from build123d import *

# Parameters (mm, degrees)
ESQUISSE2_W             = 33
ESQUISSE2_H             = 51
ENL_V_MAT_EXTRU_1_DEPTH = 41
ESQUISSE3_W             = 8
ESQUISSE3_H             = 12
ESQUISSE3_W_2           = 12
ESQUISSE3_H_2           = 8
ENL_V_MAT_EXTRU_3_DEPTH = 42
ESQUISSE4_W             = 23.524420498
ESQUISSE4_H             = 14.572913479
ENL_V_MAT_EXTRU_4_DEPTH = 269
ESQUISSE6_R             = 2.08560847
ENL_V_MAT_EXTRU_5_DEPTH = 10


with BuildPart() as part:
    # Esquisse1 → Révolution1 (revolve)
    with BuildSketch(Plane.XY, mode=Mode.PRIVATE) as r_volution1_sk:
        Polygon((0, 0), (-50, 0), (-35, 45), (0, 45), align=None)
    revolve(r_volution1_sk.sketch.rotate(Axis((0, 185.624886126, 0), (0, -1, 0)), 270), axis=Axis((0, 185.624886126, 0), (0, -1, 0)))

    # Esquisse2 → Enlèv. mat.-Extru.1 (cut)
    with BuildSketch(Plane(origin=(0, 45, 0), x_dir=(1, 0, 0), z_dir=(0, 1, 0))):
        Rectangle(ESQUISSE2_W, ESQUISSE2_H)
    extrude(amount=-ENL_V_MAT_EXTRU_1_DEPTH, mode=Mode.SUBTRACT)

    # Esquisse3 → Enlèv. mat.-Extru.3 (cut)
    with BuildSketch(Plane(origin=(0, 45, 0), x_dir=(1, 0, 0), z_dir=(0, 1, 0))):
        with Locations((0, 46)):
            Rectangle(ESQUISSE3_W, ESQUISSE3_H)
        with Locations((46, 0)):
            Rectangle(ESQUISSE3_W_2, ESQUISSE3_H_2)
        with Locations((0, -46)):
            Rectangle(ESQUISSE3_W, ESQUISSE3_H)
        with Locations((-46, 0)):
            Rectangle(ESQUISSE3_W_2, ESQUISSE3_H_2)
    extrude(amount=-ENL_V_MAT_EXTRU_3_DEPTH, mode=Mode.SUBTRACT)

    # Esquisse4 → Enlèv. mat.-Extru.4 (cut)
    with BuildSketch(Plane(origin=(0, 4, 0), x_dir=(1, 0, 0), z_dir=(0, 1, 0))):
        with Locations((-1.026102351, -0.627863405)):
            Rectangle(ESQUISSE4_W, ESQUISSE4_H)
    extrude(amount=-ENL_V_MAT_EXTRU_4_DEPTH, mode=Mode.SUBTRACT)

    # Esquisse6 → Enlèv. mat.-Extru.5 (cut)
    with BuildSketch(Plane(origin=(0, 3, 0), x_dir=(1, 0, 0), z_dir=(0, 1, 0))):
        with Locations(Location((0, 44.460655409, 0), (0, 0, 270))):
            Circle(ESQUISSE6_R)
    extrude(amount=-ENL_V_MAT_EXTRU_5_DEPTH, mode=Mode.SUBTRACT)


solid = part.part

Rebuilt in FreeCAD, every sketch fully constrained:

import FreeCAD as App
import Part
import Sketcher

V = App.Vector

doc = App.newDocument("Part")
params = doc.addObject("Spreadsheet::Sheet", "Params")
for row, (alias, value) in enumerate([
    ("sketch1_width", "50 mm"),
    ("sketch1_width2", "35 mm"),
    ("sketch1_height", "45 mm"),
    ("revolution_angle", "360 deg"),
    ("sketch2_width", "33 mm"),
    ("sketch2_height", "51 mm"),
    ("pocket1_length", "41 mm"),
    ("sketch3_width", "8 mm"),
    ("sketch3_width2", "12 mm"),
    ("pocket2_length", "42 mm"),
    ("pocket3_length", "269 mm"),
    ("pocket4_length", "10 mm"),
], start=1):
    params.set(f"A{row}", alias)
    params.set(f"B{row}", "=" + value)
    params.setAlias(f"B{row}", alias)

body = doc.addObject("PartDesign::Body", "Body")

sketch1 = doc.addObject("Sketcher::SketchObject", "Sketch")
body.addObject(sketch1)
sketch1.AttachmentSupport = (doc.XY_Plane, [""])
sketch1.MapMode = "FlatFace"
sketch1.addGeometry(Part.LineSegment(V(-50, 0, 0), V(0, 0, 0)), False)
sketch1.addGeometry(Part.LineSegment(V(0, 0, 0), V(0, 45, 0)), False)
sketch1.addGeometry(Part.LineSegment(V(0, 45, 0), V(-35, 45, 0)), False)
sketch1.addGeometry(Part.LineSegment(V(-35, 45, 0), V(-50, 0, 0)), False)
sketch1.addConstraint(Sketcher.Constraint("Coincident", 0, 2, 1, 1))
sketch1.addConstraint(Sketcher.Constraint("Coincident", 1, 2, 2, 1))
sketch1.addConstraint(Sketcher.Constraint("Coincident", 2, 2, 3, 1))
sketch1.addConstraint(Sketcher.Constraint("Coincident", 3, 2, 0, 1))
sketch1.addConstraint(Sketcher.Constraint("Horizontal", 0))
sketch1.addConstraint(Sketcher.Constraint("Vertical", 1))
sketch1.addConstraint(Sketcher.Constraint("Horizontal", 2))
sketch1.addConstraint(Sketcher.Constraint("Coincident", 0, 2, -1, 1))
sketch1.addConstraint(Sketcher.Constraint("DistanceX", 0, 1, 0, 2, 50.0))
sketch1.addConstraint(Sketcher.Constraint("DistanceX", 2, 2, 2, 1, 35.0))
sketch1.addConstraint(Sketcher.Constraint("DistanceY", 1, 1, 1, 2, 45.0))
sketch1.setExpression("Constraints[8]", "Params.sketch1_width")
sketch1.setExpression("Constraints[9]", "Params.sketch1_width2")
sketch1.setExpression("Constraints[10]", "Params.sketch1_height")
revolution = doc.addObject("PartDesign::Revolution", "Revolution")
body.addObject(revolution)
revolution.Profile = sketch1
revolution.ReferenceAxis = (sketch1, ["V_Axis"])
revolution.setExpression("Angle", "Params.revolution_angle")

sketch2 = doc.addObject("Sketcher::SketchObject", "Sketch001")
body.addObject(sketch2)
sketch2.AttachmentSupport = (doc.XZ_Plane, [""])
sketch2.MapMode = "FlatFace"
sketch2.AttachmentOffset = App.Placement(V(0, 0, -45), App.Rotation())
sketch2.addGeometry(Part.LineSegment(V(-16, -26, 0), V(-16, 26, 0)), False)
sketch2.addGeometry(Part.LineSegment(V(-16, 26, 0), V(16, 26, 0)), False)
sketch2.addGeometry(Part.LineSegment(V(16, 26, 0), V(16, -26, 0)), False)
sketch2.addGeometry(Part.LineSegment(V(16, -26, 0), V(-16, -26, 0)), False)
sketch2.addConstraint(Sketcher.Constraint("Coincident", 0, 2, 1, 1))
sketch2.addConstraint(Sketcher.Constraint("Coincident", 1, 2, 2, 1))
sketch2.addConstraint(Sketcher.Constraint("Coincident", 2, 2, 3, 1))
sketch2.addConstraint(Sketcher.Constraint("Coincident", 3, 2, 0, 1))
sketch2.addConstraint(Sketcher.Constraint("Vertical", 0))
sketch2.addConstraint(Sketcher.Constraint("Horizontal", 1))
sketch2.addConstraint(Sketcher.Constraint("Vertical", 2))
sketch2.addConstraint(Sketcher.Constraint("Horizontal", 3))
sketch2.addConstraint(Sketcher.Constraint("Symmetric", 0, 2, 2, 2, -1, 1))
sketch2.addConstraint(Sketcher.Constraint("DistanceX", 1, 1, 1, 2, 33.0))
sketch2.addConstraint(Sketcher.Constraint("DistanceY", 0, 1, 0, 2, 51.0))
sketch2.setExpression("Constraints[9]", "Params.sketch2_width")
sketch2.setExpression("Constraints[10]", "Params.sketch2_height")
pocket1 = doc.addObject("PartDesign::Pocket", "Pocket")
body.addObject(pocket1)
pocket1.Profile = sketch2
pocket1.setExpression("Length", "Params.pocket1_length")
pocket1.Reversed = True

sketch3 = doc.addObject("Sketcher::SketchObject", "Sketch002")
body.addObject(sketch3)
sketch3.AttachmentSupport = (doc.XZ_Plane, [""])
sketch3.MapMode = "FlatFace"
sketch3.AttachmentOffset = App.Placement(V(0, 0, -45), App.Rotation())
sketch3.addGeometry(Part.LineSegment(V(-4, -52, 0), V(-4, -40, 0)), False)
sketch3.addGeometry(Part.LineSegment(V(-4, -40, 0), V(4, -40, 0)), False)
sketch3.addGeometry(Part.LineSegment(V(4, -40, 0), V(4, -52, 0)), False)
sketch3.addGeometry(Part.LineSegment(V(4, -52, 0), V(-4, -52, 0)), False)
sketch3.addGeometry(Part.LineSegment(V(40, -4, 0), V(40, 4, 0)), False)
sketch3.addGeometry(Part.LineSegment(V(40, 4, 0), V(52, 4, 0)), False)
sketch3.addGeometry(Part.LineSegment(V(52, 4, 0), V(52, -4, 0)), False)
sketch3.addGeometry(Part.LineSegment(V(52, -4, 0), V(40, -4, 0)), False)
sketch3.addGeometry(Part.LineSegment(V(-4, 40, 0), V(-4, 52, 0)), False)
sketch3.addGeometry(Part.LineSegment(V(-4, 52, 0), V(4, 52, 0)), False)
sketch3.addGeometry(Part.LineSegment(V(4, 52, 0), V(4, 40, 0)), False)
sketch3.addGeometry(Part.LineSegment(V(4, 40, 0), V(-4, 40, 0)), False)
sketch3.addGeometry(Part.LineSegment(V(-52, -4, 0), V(-52, 4, 0)), False)
sketch3.addGeometry(Part.LineSegment(V(-52, 4, 0), V(-40, 4, 0)), False)
sketch3.addGeometry(Part.LineSegment(V(-40, 4, 0), V(-40, -4, 0)), False)
sketch3.addGeometry(Part.LineSegment(V(-40, -4, 0), V(-52, -4, 0)), False)
sketch3.addConstraint(Sketcher.Constraint("Coincident", 0, 2, 1, 1))
sketch3.addConstraint(Sketcher.Constraint("Coincident", 1, 2, 2, 1))
sketch3.addConstraint(Sketcher.Constraint("Coincident", 2, 2, 3, 1))
sketch3.addConstraint(Sketcher.Constraint("Coincident", 3, 2, 0, 1))
sketch3.addConstraint(Sketcher.Constraint("Coincident", 4, 2, 5, 1))
sketch3.addConstraint(Sketcher.Constraint("Coincident", 5, 2, 6, 1))
sketch3.addConstraint(Sketcher.Constraint("Coincident", 6, 2, 7, 1))
sketch3.addConstraint(Sketcher.Constraint("Coincident", 7, 2, 4, 1))
sketch3.addConstraint(Sketcher.Constraint("Coincident", 8, 2, 9, 1))
sketch3.addConstraint(Sketcher.Constraint("Coincident", 9, 2, 10, 1))
sketch3.addConstraint(Sketcher.Constraint("Coincident", 10, 2, 11, 1))
sketch3.addConstraint(Sketcher.Constraint("Coincident", 11, 2, 8, 1))
sketch3.addConstraint(Sketcher.Constraint("Coincident", 12, 2, 13, 1))
sketch3.addConstraint(Sketcher.Constraint("Coincident", 13, 2, 14, 1))
sketch3.addConstraint(Sketcher.Constraint("Coincident", 14, 2, 15, 1))
sketch3.addConstraint(Sketcher.Constraint("Coincident", 15, 2, 12, 1))
sketch3.addConstraint(Sketcher.Constraint("Vertical", 0))
sketch3.addConstraint(Sketcher.Constraint("Horizontal", 1))
sketch3.addConstraint(Sketcher.Constraint("Vertical", 2))
sketch3.addConstraint(Sketcher.Constraint("Horizontal", 3))
sketch3.addConstraint(Sketcher.Constraint("Vertical", 4))
sketch3.addConstraint(Sketcher.Constraint("Horizontal", 5))
sketch3.addConstraint(Sketcher.Constraint("Vertical", 6))
sketch3.addConstraint(Sketcher.Constraint("Horizontal", 7))
sketch3.addConstraint(Sketcher.Constraint("Vertical", 8))
sketch3.addConstraint(Sketcher.Constraint("Horizontal", 9))
sketch3.addConstraint(Sketcher.Constraint("Vertical", 10))
sketch3.addConstraint(Sketcher.Constraint("Horizontal", 11))
sketch3.addConstraint(Sketcher.Constraint("Vertical", 12))
sketch3.addConstraint(Sketcher.Constraint("Horizontal", 13))
sketch3.addConstraint(Sketcher.Constraint("Vertical", 14))
sketch3.addConstraint(Sketcher.Constraint("Horizontal", 15))
sketch3.addConstraint(Sketcher.Constraint("Symmetric", 2, 2, 8, 2, -1, 1))
sketch3.addConstraint(Sketcher.Constraint("Symmetric", 0, 2, 10, 2, -1, 1))
sketch3.addConstraint(Sketcher.Constraint("Symmetric", 6, 2, 12, 2, -1, 1))
sketch3.addConstraint(Sketcher.Constraint("Symmetric", 4, 2, 14, 2, -1, 1))
sketch3.addConstraint(Sketcher.Constraint("Horizontal", 5, 2, 12, 2))
sketch3.addConstraint(Sketcher.Constraint("Vertical", 3, 2, 8, 2))
sketch3.addConstraint(Sketcher.Constraint("Equal", 15, 0))
sketch3.addConstraint(Sketcher.Constraint("Equal", 11, 4))
sketch3.addConstraint(Sketcher.Constraint("DistanceX", 1, 1, 1, 2, 8.0))
sketch3.addConstraint(Sketcher.Constraint("DistanceX", 5, 1, 5, 2, 12.0))
sketch3.addConstraint(Sketcher.Constraint("DistanceY", 0, 2, -1, 1, 40.0))
sketch3.addConstraint(Sketcher.Constraint("DistanceX", -1, 1, 4, 2, 40.0))
sketch3.setExpression("Constraints[40]", "Params.sketch3_width")
sketch3.setExpression("Constraints[41]", "Params.sketch3_width2")
pocket2 = doc.addObject("PartDesign::Pocket", "Pocket001")
body.addObject(pocket2)
pocket2.Profile = sketch3
pocket2.setExpression("Length", "Params.pocket2_length")
pocket2.Reversed = True

sketch4 = doc.addObject("Sketcher::SketchObject", "Sketch003")
body.addObject(sketch4)
sketch4.AttachmentSupport = (doc.XZ_Plane, [""])
sketch4.MapMode = "FlatFace"
sketch4.AttachmentOffset = App.Placement(V(0, 0, -4), App.Rotation())
sketch4.addGeometry(Part.LineSegment(V(-13, -7, 0), V(-13, 8, 0)), False)
sketch4.addGeometry(Part.LineSegment(V(-13, 8, 0), V(11, 8, 0)), False)
sketch4.addGeometry(Part.LineSegment(V(11, 8, 0), V(11, -7, 0)), False)
sketch4.addGeometry(Part.LineSegment(V(11, -7, 0), V(-13, -7, 0)), False)
sketch4.addConstraint(Sketcher.Constraint("Coincident", 0, 2, 1, 1))
sketch4.addConstraint(Sketcher.Constraint("Coincident", 1, 2, 2, 1))
sketch4.addConstraint(Sketcher.Constraint("Coincident", 2, 2, 3, 1))
sketch4.addConstraint(Sketcher.Constraint("Coincident", 3, 2, 0, 1))
sketch4.addConstraint(Sketcher.Constraint("Vertical", 0))
sketch4.addConstraint(Sketcher.Constraint("Horizontal", 1))
sketch4.addConstraint(Sketcher.Constraint("Vertical", 2))
sketch4.addConstraint(Sketcher.Constraint("Horizontal", 3))
sketch4.addConstraint(Sketcher.Constraint("DistanceX", 1, 1, 1, 2, 23.52442))
sketch4.addConstraint(Sketcher.Constraint("DistanceY", 0, 1, 0, 2, 14.572913))
sketch4.addConstraint(Sketcher.Constraint("DistanceY", -1, 1, 0, 2, 7.91432))
sketch4.addConstraint(Sketcher.Constraint("DistanceX", 0, 2, -1, 1, 12.788313))
pocket3 = doc.addObject("PartDesign::Pocket", "Pocket002")
body.addObject(pocket3)
pocket3.Profile = sketch4
pocket3.setExpression("Length", "Params.pocket3_length")
pocket3.Reversed = True

sketch5 = doc.addObject("Sketcher::SketchObject", "Sketch004")
body.addObject(sketch5)
sketch5.AttachmentSupport = (doc.XZ_Plane, [""])
sketch5.MapMode = "FlatFace"
sketch5.AttachmentOffset = App.Placement(V(0, 0, -3), App.Rotation())
sketch5.addGeometry(Part.Circle(V(0, -44.5, 0), V(0, 0, 1), 2.1), False)
sketch5.addConstraint(Sketcher.Constraint("PointOnObject", 0, 3, -2))
sketch5.addConstraint(Sketcher.Constraint("Diameter", 0, 4.171217))
sketch5.addConstraint(Sketcher.Constraint("DistanceY", 0, 3, -1, 1, 44.460655))
pocket4 = doc.addObject("PartDesign::Pocket", "Pocket003")
body.addObject(pocket4)
pocket4.Profile = sketch5
pocket4.setExpression("Length", "Params.pocket4_length")
pocket4.Reversed = True

doc.recompute()
